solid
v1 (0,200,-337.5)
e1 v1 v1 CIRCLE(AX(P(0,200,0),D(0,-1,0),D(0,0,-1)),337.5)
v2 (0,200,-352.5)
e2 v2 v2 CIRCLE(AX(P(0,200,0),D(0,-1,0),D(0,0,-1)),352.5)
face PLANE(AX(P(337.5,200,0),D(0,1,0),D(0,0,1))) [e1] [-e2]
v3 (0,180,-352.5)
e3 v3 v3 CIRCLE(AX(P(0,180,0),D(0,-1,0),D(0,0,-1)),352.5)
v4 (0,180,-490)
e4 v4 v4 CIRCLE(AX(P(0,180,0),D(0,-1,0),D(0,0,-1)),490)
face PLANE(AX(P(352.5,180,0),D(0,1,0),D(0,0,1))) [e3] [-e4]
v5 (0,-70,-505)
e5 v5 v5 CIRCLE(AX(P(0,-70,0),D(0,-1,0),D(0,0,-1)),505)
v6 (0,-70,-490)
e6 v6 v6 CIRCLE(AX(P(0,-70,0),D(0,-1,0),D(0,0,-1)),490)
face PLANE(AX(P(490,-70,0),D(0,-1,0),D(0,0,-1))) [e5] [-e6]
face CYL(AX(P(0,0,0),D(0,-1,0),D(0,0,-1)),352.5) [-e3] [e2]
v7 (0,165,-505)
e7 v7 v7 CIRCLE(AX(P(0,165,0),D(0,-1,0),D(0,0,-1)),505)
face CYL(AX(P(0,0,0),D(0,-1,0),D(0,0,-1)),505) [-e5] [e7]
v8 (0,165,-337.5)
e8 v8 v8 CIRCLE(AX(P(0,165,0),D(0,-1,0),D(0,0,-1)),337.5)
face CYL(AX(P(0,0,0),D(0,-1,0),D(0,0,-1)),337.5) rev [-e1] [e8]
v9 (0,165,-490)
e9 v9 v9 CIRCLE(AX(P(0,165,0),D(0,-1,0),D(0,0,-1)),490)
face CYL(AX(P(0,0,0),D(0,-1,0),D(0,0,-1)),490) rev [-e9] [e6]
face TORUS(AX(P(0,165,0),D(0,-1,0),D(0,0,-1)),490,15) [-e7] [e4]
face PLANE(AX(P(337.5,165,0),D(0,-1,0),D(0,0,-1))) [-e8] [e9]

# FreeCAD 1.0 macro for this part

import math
import FreeCAD as App
import Part
import Sketcher
Q = App.Units.Quantity

doc = App.newDocument("Part")
params = doc.addObject("Spreadsheet::Sheet", "Params")
for row, (alias, value) in enumerate([
    ("sketch1_radius", "15 mm"),
    ("sketch1_height", "35 mm"),
    ("sketch1_height2", "235 mm"),
    ("sketch1_width", "152.5 mm"),
    ("revolution_angle", "360 deg"),
], start=1):
    params.set(f"A{row}", alias)
    params.set(f"B{row}", "=" + value)
    params.setAlias(f"B{row}", alias)

body = doc.addObject("PartDesign::Body", "Body")

# Sketch on XY plane
sketch1 = body.newObject("Sketcher::SketchObject", "Sketch")
sketch1.AttachmentSupport = (doc.getObject("XY_Plane"), [""])
sketch1.MapMode = "FlatFace"
sketch1.addGeometry([
    Part.LineSegment(App.Vector(338, 200, 0), App.Vector(338, 165, 0)),  # 0
    Part.LineSegment(App.Vector(338, 165, 0), App.Vector(490, 165, 0)),  # 1
    Part.LineSegment(App.Vector(490, 165, 0), App.Vector(490, -70, 0)),  # 2
    Part.LineSegment(App.Vector(490, -70, 0), App.Vector(505, -70, 0)),  # 3
    Part.LineSegment(App.Vector(505, -70, 0), App.Vector(505, 165, 0)),  # 4
    Part.ArcOfCircle(Part.Circle(App.Vector(490, 165, 0), App.Vector(0, 0, 1), 15), math.radians(0), math.radians(90)),  # 5
    Part.LineSegment(App.Vector(490, 180, 0), App.Vector(352, 180, 0)),  # 6
    Part.LineSegment(App.Vector(352, 180, 0), App.Vector(352, 200, 0)),  # 7
    Part.LineSegment(App.Vector(352, 200, 0), App.Vector(338, 200, 0)),  # 8
], False)
sketch1.addConstraint([
    Sketcher.Constraint("Coincident", 0, 2, 1, 1),
    Sketcher.Constraint("Coincident", 1, 2, 2, 1),
    Sketcher.Constraint("Coincident", 2, 2, 3, 1),
    Sketcher.Constraint("Coincident", 3, 2, 4, 1),
    Sketcher.Constraint("Tangent", 4, 2, 5, 1),
    Sketcher.Constraint("Tangent", 5, 2, 6, 1),
    Sketcher.Constraint("Coincident", 6, 2, 7, 1),
    Sketcher.Constraint("Coincident", 7, 2, 8, 1),
    Sketcher.Constraint("Coincident", 8, 2, 0, 1),
    Sketcher.Constraint("Vertical", 0),
    Sketcher.Constraint("Horizontal", 1),
    Sketcher.Constraint("Vertical", 2),
    Sketcher.Constraint("Horizontal", 3),
    Sketcher.Constraint("Vertical", 4),
    Sketcher.Constraint("Horizontal", 6),
    Sketcher.Constraint("Vertical", 7),
    Sketcher.Constraint("Horizontal", 8),
    Sketcher.Constraint("Coincident", 1, 2, 5, 3),
    Sketcher.Constraint("Equal", 3, 8),
    Sketcher.Constraint("Radius", 5, Q("15 mm")),
    Sketcher.Constraint("DistanceY", 0, 2, 0, 1, Q("35 mm")),
    Sketcher.Constraint("DistanceY", 2, 2, 2, 1, Q("235 mm")),
    Sketcher.Constraint("DistanceX", 1, 1, 1, 2, Q("152.5 mm")),
    Sketcher.Constraint("DistanceX", -1, 1, 5, 3, Q("490 mm")),
    Sketcher.Constraint("DistanceY", -1, 1, 5, 3, Q("165 mm")),
])
sketch1.setExpression("Constraints[19]", "Params.sketch1_radius")
sketch1.setExpression("Constraints[20]", "Params.sketch1_height")
sketch1.setExpression("Constraints[21]", "Params.sketch1_height2")
sketch1.setExpression("Constraints[22]", "Params.sketch1_width")
revolution = body.newObject("PartDesign::Revolution", "Revolution")
revolution.Profile = sketch1
revolution.ReferenceAxis = (sketch1, ["V_Axis"])
revolution.setExpression("Angle", "Params.revolution_angle")

doc.recompute()
